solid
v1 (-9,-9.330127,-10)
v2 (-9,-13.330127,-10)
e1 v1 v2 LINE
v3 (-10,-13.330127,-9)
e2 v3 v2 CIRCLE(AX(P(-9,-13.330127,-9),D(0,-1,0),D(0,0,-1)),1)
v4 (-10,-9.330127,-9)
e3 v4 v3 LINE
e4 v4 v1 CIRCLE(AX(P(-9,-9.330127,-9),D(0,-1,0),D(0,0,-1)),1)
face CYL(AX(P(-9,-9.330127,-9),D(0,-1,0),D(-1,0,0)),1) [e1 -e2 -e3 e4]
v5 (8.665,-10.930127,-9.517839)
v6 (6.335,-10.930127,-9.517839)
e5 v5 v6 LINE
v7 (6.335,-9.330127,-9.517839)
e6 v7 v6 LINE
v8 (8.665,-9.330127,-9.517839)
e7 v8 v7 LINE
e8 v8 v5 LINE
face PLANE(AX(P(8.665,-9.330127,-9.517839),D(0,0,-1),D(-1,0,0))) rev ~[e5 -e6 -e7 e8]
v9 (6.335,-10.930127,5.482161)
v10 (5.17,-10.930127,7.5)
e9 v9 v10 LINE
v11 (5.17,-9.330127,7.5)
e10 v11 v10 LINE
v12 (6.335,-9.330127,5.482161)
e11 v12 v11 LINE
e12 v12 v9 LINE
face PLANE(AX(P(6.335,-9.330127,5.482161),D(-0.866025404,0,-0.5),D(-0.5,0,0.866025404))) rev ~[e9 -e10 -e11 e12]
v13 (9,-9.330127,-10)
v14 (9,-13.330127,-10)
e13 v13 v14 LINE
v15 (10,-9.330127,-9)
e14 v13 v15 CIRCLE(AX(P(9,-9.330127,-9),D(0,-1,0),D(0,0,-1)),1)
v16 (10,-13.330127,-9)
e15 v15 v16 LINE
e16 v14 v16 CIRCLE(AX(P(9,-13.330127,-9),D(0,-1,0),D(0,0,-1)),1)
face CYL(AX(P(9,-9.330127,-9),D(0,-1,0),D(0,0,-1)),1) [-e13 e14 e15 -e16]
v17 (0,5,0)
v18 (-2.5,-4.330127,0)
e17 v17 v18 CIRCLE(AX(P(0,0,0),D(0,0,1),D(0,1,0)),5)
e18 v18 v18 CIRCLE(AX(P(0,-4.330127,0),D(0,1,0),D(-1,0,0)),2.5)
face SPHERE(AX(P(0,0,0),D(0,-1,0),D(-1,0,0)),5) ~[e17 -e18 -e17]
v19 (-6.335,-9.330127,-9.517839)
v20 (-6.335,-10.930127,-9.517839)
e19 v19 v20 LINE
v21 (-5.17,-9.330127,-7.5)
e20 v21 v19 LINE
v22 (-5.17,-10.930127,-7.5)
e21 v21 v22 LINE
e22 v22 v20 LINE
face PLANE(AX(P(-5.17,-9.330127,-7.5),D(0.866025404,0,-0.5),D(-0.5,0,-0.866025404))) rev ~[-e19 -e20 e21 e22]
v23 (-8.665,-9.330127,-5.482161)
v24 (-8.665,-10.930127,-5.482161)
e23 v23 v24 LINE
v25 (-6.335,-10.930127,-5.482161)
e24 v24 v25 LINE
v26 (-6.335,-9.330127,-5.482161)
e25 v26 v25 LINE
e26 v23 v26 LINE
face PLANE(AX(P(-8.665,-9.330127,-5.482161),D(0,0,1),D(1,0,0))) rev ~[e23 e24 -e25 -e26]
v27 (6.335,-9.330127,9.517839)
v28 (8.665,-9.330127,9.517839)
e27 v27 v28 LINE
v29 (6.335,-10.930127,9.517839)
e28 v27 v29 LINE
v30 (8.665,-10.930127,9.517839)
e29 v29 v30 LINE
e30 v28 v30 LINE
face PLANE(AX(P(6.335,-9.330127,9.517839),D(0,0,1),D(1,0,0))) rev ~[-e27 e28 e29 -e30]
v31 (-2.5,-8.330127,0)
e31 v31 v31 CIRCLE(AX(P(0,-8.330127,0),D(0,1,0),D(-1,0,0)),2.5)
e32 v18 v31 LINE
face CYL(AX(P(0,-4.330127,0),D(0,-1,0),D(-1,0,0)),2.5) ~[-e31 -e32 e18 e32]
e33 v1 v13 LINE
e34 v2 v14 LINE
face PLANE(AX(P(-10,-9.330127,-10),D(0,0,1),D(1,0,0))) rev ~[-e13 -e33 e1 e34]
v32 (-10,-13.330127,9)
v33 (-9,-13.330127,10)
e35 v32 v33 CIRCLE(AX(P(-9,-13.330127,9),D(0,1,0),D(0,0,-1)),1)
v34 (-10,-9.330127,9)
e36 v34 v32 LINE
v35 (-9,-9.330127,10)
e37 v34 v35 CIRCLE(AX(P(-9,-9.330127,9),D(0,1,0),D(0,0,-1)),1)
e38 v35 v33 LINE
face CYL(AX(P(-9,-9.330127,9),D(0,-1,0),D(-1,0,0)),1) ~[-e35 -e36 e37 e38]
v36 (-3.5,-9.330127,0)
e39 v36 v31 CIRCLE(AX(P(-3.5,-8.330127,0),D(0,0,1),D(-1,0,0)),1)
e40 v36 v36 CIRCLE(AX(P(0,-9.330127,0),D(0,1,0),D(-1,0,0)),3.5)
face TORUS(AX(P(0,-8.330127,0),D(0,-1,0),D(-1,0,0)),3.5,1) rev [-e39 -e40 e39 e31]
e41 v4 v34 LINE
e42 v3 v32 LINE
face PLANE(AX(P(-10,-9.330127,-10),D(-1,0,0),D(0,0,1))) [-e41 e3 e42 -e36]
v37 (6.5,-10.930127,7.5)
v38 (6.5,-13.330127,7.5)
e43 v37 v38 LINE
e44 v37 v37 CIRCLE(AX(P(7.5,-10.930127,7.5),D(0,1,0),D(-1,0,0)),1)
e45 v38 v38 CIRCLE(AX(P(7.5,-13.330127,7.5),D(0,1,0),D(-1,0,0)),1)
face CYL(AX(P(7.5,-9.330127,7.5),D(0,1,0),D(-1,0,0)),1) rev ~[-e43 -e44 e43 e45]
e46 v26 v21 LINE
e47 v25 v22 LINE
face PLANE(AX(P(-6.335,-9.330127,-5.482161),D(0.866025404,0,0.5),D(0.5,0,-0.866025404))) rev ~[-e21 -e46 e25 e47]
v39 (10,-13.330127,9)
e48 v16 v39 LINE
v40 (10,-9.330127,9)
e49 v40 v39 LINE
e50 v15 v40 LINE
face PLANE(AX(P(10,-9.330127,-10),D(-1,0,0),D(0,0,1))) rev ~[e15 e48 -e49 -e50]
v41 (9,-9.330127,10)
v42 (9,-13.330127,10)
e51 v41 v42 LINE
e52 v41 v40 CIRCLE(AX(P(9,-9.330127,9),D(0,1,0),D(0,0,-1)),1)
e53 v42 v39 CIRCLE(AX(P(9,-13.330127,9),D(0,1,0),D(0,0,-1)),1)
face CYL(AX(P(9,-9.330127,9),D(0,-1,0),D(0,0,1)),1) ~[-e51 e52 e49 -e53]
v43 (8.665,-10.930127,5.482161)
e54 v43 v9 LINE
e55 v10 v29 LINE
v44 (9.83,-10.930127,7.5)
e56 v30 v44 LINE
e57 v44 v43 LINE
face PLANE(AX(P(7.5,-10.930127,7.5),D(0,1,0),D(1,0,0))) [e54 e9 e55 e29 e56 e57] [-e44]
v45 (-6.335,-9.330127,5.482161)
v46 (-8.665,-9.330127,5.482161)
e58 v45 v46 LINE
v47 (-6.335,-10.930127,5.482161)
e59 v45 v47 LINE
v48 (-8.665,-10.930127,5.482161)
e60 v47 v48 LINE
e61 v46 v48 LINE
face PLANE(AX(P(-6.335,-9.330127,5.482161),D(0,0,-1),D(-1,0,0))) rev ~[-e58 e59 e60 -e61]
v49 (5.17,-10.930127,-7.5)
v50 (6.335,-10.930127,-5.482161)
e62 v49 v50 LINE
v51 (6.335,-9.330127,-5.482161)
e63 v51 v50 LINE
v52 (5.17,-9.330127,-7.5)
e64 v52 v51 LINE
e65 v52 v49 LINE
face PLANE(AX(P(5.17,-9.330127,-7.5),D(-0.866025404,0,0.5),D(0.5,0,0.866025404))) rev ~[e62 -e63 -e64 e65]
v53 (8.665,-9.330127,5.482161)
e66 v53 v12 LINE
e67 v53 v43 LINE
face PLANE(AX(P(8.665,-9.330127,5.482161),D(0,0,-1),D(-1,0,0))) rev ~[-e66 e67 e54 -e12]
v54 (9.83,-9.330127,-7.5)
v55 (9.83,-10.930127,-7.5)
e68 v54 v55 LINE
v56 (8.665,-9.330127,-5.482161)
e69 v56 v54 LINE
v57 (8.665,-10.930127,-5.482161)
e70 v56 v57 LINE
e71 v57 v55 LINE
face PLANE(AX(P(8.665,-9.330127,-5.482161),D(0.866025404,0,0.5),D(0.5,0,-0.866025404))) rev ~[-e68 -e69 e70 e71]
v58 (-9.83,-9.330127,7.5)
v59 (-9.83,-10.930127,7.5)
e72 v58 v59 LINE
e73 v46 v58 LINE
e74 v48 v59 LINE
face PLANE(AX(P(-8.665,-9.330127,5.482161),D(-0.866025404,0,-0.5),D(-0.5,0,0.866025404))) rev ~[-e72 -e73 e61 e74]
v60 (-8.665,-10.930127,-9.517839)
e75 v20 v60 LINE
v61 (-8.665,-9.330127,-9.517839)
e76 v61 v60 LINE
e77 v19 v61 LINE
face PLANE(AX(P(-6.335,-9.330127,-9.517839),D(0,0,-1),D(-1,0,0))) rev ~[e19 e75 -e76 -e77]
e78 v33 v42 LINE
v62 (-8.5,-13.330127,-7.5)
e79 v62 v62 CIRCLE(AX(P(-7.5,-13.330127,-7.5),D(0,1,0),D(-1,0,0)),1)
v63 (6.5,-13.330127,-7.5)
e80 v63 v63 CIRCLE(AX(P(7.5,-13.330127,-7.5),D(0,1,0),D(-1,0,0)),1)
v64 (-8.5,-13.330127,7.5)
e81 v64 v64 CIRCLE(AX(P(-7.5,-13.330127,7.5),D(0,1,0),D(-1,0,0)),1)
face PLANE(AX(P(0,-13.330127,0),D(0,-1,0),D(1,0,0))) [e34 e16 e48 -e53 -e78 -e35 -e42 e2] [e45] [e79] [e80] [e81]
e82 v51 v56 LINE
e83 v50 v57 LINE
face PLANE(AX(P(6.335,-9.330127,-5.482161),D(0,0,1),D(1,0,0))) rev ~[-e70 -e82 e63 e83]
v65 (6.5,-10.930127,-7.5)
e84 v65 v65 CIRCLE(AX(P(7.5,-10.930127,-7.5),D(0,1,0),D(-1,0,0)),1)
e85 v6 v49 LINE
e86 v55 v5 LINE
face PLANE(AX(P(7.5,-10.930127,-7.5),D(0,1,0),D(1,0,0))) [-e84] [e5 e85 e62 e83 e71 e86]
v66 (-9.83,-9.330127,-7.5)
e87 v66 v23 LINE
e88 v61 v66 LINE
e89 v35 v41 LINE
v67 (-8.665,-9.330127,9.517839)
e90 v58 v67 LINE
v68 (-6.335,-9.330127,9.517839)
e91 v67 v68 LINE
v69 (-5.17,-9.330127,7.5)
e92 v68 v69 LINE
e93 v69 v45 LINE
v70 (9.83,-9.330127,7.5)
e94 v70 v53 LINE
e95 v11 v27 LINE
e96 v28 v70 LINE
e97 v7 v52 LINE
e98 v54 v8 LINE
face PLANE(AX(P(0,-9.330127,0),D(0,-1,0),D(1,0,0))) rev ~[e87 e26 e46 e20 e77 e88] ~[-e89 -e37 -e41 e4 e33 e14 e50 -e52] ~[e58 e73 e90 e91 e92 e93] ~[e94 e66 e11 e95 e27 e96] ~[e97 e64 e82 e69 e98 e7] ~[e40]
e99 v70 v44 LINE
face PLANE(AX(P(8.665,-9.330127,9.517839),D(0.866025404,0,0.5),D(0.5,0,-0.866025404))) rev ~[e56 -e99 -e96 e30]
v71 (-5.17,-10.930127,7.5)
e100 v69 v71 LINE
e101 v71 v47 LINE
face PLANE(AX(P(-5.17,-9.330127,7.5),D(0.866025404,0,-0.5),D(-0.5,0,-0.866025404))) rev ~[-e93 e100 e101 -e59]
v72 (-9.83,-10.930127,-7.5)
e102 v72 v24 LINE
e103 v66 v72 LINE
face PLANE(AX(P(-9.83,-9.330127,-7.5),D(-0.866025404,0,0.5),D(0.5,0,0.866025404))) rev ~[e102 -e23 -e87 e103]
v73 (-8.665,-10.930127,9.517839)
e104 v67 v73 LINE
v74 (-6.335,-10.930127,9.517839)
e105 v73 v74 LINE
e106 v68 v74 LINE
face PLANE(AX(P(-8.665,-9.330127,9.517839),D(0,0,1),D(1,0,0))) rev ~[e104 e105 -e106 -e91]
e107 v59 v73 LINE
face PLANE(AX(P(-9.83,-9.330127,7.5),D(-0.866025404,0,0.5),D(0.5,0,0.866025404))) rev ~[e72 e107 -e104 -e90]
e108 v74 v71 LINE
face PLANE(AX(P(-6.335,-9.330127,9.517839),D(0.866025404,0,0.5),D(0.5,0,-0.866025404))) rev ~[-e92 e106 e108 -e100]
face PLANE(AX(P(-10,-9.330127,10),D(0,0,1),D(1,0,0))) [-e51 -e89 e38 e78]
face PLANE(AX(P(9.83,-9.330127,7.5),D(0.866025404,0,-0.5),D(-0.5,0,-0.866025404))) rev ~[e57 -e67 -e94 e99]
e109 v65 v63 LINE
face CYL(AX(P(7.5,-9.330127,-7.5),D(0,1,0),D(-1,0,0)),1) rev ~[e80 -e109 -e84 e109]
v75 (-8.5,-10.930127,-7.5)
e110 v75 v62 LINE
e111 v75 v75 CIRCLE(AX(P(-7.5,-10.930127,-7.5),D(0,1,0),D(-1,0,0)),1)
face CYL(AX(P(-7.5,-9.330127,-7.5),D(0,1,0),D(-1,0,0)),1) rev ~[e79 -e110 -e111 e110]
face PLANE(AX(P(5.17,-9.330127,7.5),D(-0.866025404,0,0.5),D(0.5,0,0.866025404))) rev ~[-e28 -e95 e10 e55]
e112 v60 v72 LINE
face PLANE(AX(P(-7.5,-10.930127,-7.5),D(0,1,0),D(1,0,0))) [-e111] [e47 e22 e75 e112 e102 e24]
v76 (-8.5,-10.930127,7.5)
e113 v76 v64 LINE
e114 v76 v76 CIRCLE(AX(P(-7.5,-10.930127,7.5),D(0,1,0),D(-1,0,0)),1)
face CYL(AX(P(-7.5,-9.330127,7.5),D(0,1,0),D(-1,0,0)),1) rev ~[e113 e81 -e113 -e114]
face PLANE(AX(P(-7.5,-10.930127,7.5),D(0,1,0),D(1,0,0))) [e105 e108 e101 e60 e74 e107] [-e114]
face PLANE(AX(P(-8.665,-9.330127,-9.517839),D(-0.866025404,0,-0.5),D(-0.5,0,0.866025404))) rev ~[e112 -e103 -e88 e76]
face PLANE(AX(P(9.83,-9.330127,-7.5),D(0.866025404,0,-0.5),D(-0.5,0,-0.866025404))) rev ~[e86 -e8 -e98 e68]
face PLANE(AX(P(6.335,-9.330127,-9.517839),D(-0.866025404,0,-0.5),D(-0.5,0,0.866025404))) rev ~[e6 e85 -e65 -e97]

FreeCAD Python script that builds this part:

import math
import FreeCAD as App
import Part
import Sketcher
Q = App.Units.Quantity


def edges_at(feature, points):
    """Names of the edges that pass closest to the given points."""
    edges = feature.Shape.Edges
    near = lambda p: min(range(len(edges)), key=lambda i: edges[i].distToShape(Part.Vertex(*p))[0])
    return sorted({f"Edge{near(p) + 1}" for p in points})


def add_polygon(sketch, points):
    """Adds a closed chain of lines whose ends are joined by coincident constraints."""
    first, n = sketch.GeometryCount, len(points)
    for a, b in zip(points, points[1:] + points[:1]):
        sketch.addGeometry(Part.LineSegment(App.Vector(*a, 0), App.Vector(*b, 0)), False)
    for i in range(n):
        sketch.addConstraint(Sketcher.Constraint("Coincident", first + i, 2, first + (i + 1) % n, 1))

doc = App.newDocument("Part")
body = doc.addObject("PartDesign::Body", "Body")

# Sketch on XY plane
sketch1 = body.newObject("Sketcher::SketchObject", "Sketch")
sketch1.AttachmentSupport = (doc.getObject("XY_Plane"), [""])
sketch1.MapMode = "FlatFace"
sketch1.addGeometry([
    Part.LineSegment(App.Vector(-2.5, -4.3, 0), App.Vector(-2.5, -9.3, 0)),
    Part.LineSegment(App.Vector(-2.5, -9.3, 0), App.Vector(0, -9.3, 0)),
    Part.LineSegment(App.Vector(0, -9.3, 0), App.Vector(0, 5, 0)),
    Part.ArcOfCircle(Part.Circle(App.Vector(0, 0, 0), App.Vector(0, 0, 1), 5), math.radians(90), math.radians(240)),
], False)
sketch1.addConstraint([
    Sketcher.Constraint("Coincident", 0, 2, 1, 1),
    Sketcher.Constraint("Coincident", 1, 2, 2, 1),
    Sketcher.Constraint("Coincident", 2, 2, 3, 1),
    Sketcher.Constraint("Coincident", 3, 2, 0, 1),
    Sketcher.Constraint("Vertical", 0),
    Sketcher.Constraint("Horizontal", 1),
    Sketcher.Constraint("Vertical", 2),
    Sketcher.Constraint("Coincident", 3, 3, -1, 1),
    Sketcher.Constraint("PointOnObject", 1, 2, -2),
    Sketcher.Constraint("Radius", 3, 5.0),
    Sketcher.Constraint("DistanceY", 0, 2, 0, 1, 5.0),
    Sketcher.Constraint("DistanceX", 1, 1, 1, 2, 2.5),
])
revolution = body.newObject("PartDesign::Revolution", "Revolution")
revolution.Profile = sketch1
revolution.ReferenceAxis = (sketch1, ["V_Axis"])
revolution.Angle = 360

# Sketch on XZ plane
sketch2 = body.newObject("Sketcher::SketchObject", "Sketch001")
sketch2.AttachmentSupport = (doc.getObject("XZ_Plane"), [""])
sketch2.MapMode = "FlatFace"
sketch2.AttachmentOffset = App.Placement(App.Vector(0, 0, 9.330127), App.Rotation())
add_polygon(sketch2, [(-10, 10), (-10, -10), (10, -10), (10, 10)])  # lines 0-3
sketch2.addConstraint([
    Sketcher.Constraint("Vertical", 0),
    Sketcher.Constraint("Horizontal", 1),
    Sketcher.Constraint("Vertical", 2),
    Sketcher.Constraint("Horizontal", 3),
    Sketcher.Constraint("Symmetric", 0, 2, 2, 2, -1, 1),
    Sketcher.Constraint("Equal", 3, 0),
    Sketcher.Constraint("DistanceX", 1, 1, 1, 2, 20.0),
])
pad1 = body.newObject("PartDesign::Pad", "Pad")
pad1.Profile = sketch2
pad1.Length = 4

# Sketch on XZ plane
sketch3 = body.newObject("Sketcher::SketchObject", "Sketch002")
sketch3.AttachmentSupport = (doc.getObject("XZ_Plane"), [""])
sketch3.MapMode = "FlatFace"
sketch3.AttachmentOffset = App.Placement(App.Vector(0, 0, 9.330127), App.Rotation())
sketch3.addGeometry(Part.Circle(App.Vector(7.5, 7.5, 0), App.Vector(0, 0, 1), 1), False)
sketch3.addConstraint([
    Sketcher.Constraint("Diameter", 0, 2.0),
    Sketcher.Constraint("DistanceX", -1, 1, 0, 3, 7.5),
    Sketcher.Constraint("DistanceY", -1, 1, 0, 3, 7.5),
])
pocket1 = body.newObject("PartDesign::Pocket", "Pocket")
pocket1.Profile = sketch3
pocket1.Type = "UpToFirst"
pocket1.Reversed = True

# Sketch on XZ plane
sketch4 = body.newObject("Sketcher::SketchObject", "Sketch003")
sketch4.AttachmentSupport = (doc.getObject("XZ_Plane"), [""])
sketch4.MapMode = "FlatFace"
sketch4.AttachmentOffset = App.Placement(App.Vector(0, 0, 9.330127), App.Rotation())
sketch4.addGeometry(Part.Circle(App.Vector(7.5, -7.5, 0), App.Vector(0, 0, 1), 1), False)
sketch4.addConstraint([
    Sketcher.Constraint("Diameter", 0, 2.0),
    Sketcher.Constraint("DistanceX", -1, 1, 0, 3, 7.5),
    Sketcher.Constraint("DistanceY", 0, 3, -1, 1, 7.5),
])
pocket2 = body.newObject("PartDesign::Pocket", "Pocket001")
pocket2.Profile = sketch4
pocket2.Type = "UpToFirst"
pocket2.Reversed = True

# Sketch on XZ plane
sketch5 = body.newObject("Sketcher::SketchObject", "Sketch004")
sketch5.AttachmentSupport = (doc.getObject("XZ_Plane"), [""])
sketch5.MapMode = "FlatFace"
sketch5.AttachmentOffset = App.Placement(App.Vector(0, 0, 9.330127), App.Rotation())
sketch5.addGeometry(Part.Circle(App.Vector(-7.5, -7.5, 0), App.Vector(0, 0, 1), 1), False)
sketch5.addConstraint([
    Sketcher.Constraint("Diameter", 0, 2.0),
    Sketcher.Constraint("DistanceX", 0, 3, -1, 1, 7.5),
    Sketcher.Constraint("DistanceY", 0, 3, -1, 1, 7.5),
])
pocket3 = body.newObject("PartDesign::Pocket", "Pocket002")
pocket3.Profile = sketch5
pocket3.Type = "UpToFirst"
pocket3.Reversed = True

# Sketch on XZ plane
sketch6 = body.newObject("Sketcher::SketchObject", "Sketch005")
sketch6.AttachmentSupport = (doc.getObject("XZ_Plane"), [""])
sketch6.MapMode = "FlatFace"
sketch6.AttachmentOffset = App.Placement(App.Vector(0, 0, 9.330127), App.Rotation())
sketch6.addGeometry(Part.Circle(App.Vector(-7.5, 7.5, 0), App.Vector(0, 0, 1), 1), False)
sketch6.addConstraint([
    Sketcher.Constraint("Diameter", 0, 2.0),
    Sketcher.Constraint("DistanceX", 0, 3, -1, 1, 7.5),
    Sketcher.Constraint("DistanceY", -1, 1, 0, 3, 7.5),
])
pocket4 = body.newObject("PartDesign::Pocket", "Pocket003")
pocket4.Profile = sketch6
pocket4.Type = "UpToFirst"
pocket4.Reversed = True
doc.recompute()

fillet = body.newObject("PartDesign::Fillet", "Fillet")
fillet.Base = (pocket4, edges_at(pocket4, [
    (-10, -11.33, -10),
    (10, -11.33, -10),
    (10, -11.33, 10),
    (2.5, -9.33, 0),
    (-10, -11.33, 10),
]))
fillet.Radius = 1

# Sketch on XZ plane
sketch7 = body.newObject("Sketcher::SketchObject", "Sketch006")
sketch7.AttachmentSupport = (doc.getObject("XZ_Plane"), [""])
sketch7.MapMode = "FlatFace"
sketch7.AttachmentOffset = App.Placement(App.Vector(0, 0, 9.330127), App.Rotation())
add_polygon(sketch7, [(-6.3, 5.5), (-8.7, 5.5), (-9.8, 7.5), (-8.7, 9.5), (-6.3, 9.5), (-5.2, 7.5)])  # lines 0-5
add_polygon(sketch7, [(9.8, 7.5), (8.7, 5.5), (6.3, 5.5), (5.2, 7.5), (6.3, 9.5), (8.7, 9.5)])  # lines 6-11
add_polygon(sketch7, [(8.7, -5.5), (9.8, -7.5), (8.7, -9.5), (6.3, -9.5), (5.2, -7.5), (6.3, -5.5)])  # lines 12-17
add_polygon(sketch7, [(-5.2, -7.5), (-6.3, -9.5), (-8.7, -9.5), (-9.8, -7.5), (-8.7, -5.5), (-6.3, -5.5)])  # lines 18-23
sketch7.addConstraint([
    Sketcher.Constraint("Horizontal", 0),
    Sketcher.Constraint("Horizontal", 3),
    Sketcher.Constraint("Horizontal", 7),
    Sketcher.Constraint("Horizontal", 10),
    Sketcher.Constraint("Horizontal", 14),
    Sketcher.Constraint("Horizontal", 17),
    Sketcher.Constraint("Horizontal", 19),
    Sketcher.Constraint("Horizontal", 22),
    Sketcher.Constraint("Symmetric", 1, 2, 12, 2, -1, 1),
    Sketcher.Constraint("Symmetric", 2, 2, 13, 2, -1, 1),
    Sketcher.Constraint("Symmetric", 4, 2, 15, 2, -1, 1),
    Sketcher.Constraint("Symmetric", 5, 2, 16, 2, -1, 1),
    Sketcher.Constraint("Symmetric", 9, 2, 18, 2, -1, 1),
    Sketcher.Constraint("Symmetric", 11, 2, 20, 2, -1, 1),
    Sketcher.Constraint("Symmetric", 6, 2, 21, 2, -1, 1),
    Sketcher.Constraint("Symmetric", 8, 2, 23, 2, -1, 1),
    Sketcher.Constraint("Symmetric", 0, 2, 6, 2, -2),
    Sketcher.Constraint("Symmetric", 4, 2, 8, 2, -2),
    Sketcher.Constraint("Symmetric", 3, 2, 9, 2, -2),
    Sketcher.Constraint("Symmetric", 1, 2, 11, 2, -2),
    Sketcher.Constraint("Parallel", 1, 4),
    Sketcher.Constraint("Parallel", 2, 5),
    Sketcher.Constraint("Parallel", 5, 6),
    Sketcher.Constraint("Parallel", 4, 8),
    Sketcher.Constraint("Parallel", 8, 11),
    Sketcher.Constraint("Parallel", 11, 12),
    Sketcher.Constraint("Parallel", 12, 15),
    Sketcher.Constraint("Parallel", 15, 20),
    Sketcher.Constraint("Parallel", 20, 23),
    Sketcher.Constraint("Horizontal", 1, 2, 4, 2),
    Sketcher.Constraint("Vertical", 0, 2, 2, 2),
    Sketcher.Constraint("Angle", 1, Q("120 deg")),
    Sketcher.Constraint("DistanceX", 5, 2, 6, 2, 15.0),
    Sketcher.Constraint("DistanceY", 12, 2, 11, 2, 15.0),
    Sketcher.Constraint("DistanceX", 0, 2, 0, 1, 2.33),
    Sketcher.Constraint("Distance", 1, 2.33),
])
pocket5 = body.newObject("PartDesign::Pocket", "Pocket004")
pocket5.Profile = sketch7
pocket5.Length = 1.6
pocket5.Reversed = True

doc.recompute()
